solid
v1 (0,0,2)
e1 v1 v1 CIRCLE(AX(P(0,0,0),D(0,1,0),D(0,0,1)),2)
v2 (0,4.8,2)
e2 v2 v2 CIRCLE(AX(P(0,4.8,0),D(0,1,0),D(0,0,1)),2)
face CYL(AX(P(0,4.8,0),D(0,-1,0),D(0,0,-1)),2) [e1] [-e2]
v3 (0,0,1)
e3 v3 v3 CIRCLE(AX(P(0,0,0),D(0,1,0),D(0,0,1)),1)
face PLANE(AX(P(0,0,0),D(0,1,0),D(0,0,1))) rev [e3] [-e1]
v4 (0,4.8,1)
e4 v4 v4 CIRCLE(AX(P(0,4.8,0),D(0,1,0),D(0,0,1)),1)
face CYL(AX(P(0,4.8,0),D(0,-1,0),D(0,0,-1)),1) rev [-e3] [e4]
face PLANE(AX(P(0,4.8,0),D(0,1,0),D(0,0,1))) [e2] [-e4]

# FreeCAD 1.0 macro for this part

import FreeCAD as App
import Part
import Sketcher
Q = App.Units.Quantity

doc = App.newDocument("Part")
params = doc.addObject("Spreadsheet::Sheet", "Params")
for row, (alias, value) in enumerate([
    ("sketch1_diameter", "4 mm"),
    ("sketch1_diameter2", "2 mm"),
    ("pad1_length", "4.8 mm"),
], start=1):
    params.set(f"A{row}", alias)
    params.set(f"B{row}", "=" + value)
    params.setAlias(f"B{row}", alias)

body = doc.addObject("PartDesign::Body", "Body")

# Sketch on XZ plane
sketch1 = doc.addObject("Sketcher::SketchObject", "Sketch")
body.addObject(sketch1)
sketch1.AttachmentSupport = (doc.XZ_Plane, [""])
sketch1.MapMode = "FlatFace"
sketch1.addGeometry([
    Part.Circle(App.Vector(0, 0, 0), App.Vector(0, 0, 1), 2),
    Part.Circle(App.Vector(0, 0, 0), App.Vector(0, 0, 1), 1),
], False)
sketch1.addConstraint([
    Sketcher.Constraint("Coincident", 0, 3, -1, 1),
    Sketcher.Constraint("Coincident", 1, 3, -1, 1),
    Sketcher.Constraint("Diameter", 0, Q("4 mm")),
    Sketcher.Constraint("Diameter", 1, Q("2 mm")),
])
sketch1.setExpression("Constraints[2]", "Params.sketch1_diameter")
sketch1.setExpression("Constraints[3]", "Params.sketch1_diameter2")
pad1 = doc.addObject("PartDesign::Pad", "Pad")
body.addObject(pad1)
pad1.Profile = sketch1
pad1.setExpression("Length", "Params.pad1_length")
pad1.Reversed = True

doc.recompute()
